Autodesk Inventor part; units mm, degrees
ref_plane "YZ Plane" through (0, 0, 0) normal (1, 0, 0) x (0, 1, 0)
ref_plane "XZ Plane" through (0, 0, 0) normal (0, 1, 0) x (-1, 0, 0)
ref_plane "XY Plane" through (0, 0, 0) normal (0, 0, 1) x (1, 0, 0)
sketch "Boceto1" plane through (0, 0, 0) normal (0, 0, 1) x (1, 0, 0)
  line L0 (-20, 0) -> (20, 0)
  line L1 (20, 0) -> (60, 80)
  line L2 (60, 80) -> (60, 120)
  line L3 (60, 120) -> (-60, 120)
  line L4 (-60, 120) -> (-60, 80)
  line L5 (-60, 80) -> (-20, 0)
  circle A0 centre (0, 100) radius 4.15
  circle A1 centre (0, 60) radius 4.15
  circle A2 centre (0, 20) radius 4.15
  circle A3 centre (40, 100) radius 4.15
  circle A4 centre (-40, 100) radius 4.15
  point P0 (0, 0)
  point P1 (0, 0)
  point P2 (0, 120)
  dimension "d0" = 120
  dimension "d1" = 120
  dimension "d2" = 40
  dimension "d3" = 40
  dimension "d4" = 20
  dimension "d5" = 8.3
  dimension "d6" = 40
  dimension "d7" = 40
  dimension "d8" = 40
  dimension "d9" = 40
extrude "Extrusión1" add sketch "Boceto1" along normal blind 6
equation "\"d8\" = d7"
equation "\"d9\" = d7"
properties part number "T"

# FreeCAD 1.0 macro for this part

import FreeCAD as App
import Part
import Sketcher


def add_polygon(sketch, points):
    """Adds a closed chain of lines whose ends are joined by coincident constraints."""
    first, n = sketch.GeometryCount, len(points)
    for a, b in zip(points, points[1:] + points[:1]):
        sketch.addGeometry(Part.LineSegment(App.Vector(*a, 0), App.Vector(*b, 0)), False)
    for i in range(n):
        sketch.addConstraint(Sketcher.Constraint("Coincident", first + i, 2, first + (i + 1) % n, 1))

doc = App.newDocument("Part")
body = doc.addObject("PartDesign::Body", "Body")

# Sketch on XY plane
sketch1 = body.newObject("Sketcher::SketchObject", "Sketch")
sketch1.AttachmentSupport = (doc.getObject("XY_Plane"), [""])
sketch1.MapMode = "FlatFace"
add_polygon(sketch1, [(-60, 80), (-20, 0), (20, 0), (60, 80), (60, 120), (-60, 120)])  # lines 0-5
sketch1.addGeometry(Part.Circle(App.Vector(0, 20, 0), App.Vector(0, 0, 1), 4.2), False)  # 6
sketch1.addGeometry(Part.Circle(App.Vector(-40, 100, 0), App.Vector(0, 0, 1), 4.2), False)  # 7
sketch1.addGeometry(Part.Circle(App.Vector(0, 60, 0), App.Vector(0, 0, 1), 4.2), False)  # 8
sketch1.addGeometry(Part.Circle(App.Vector(0, 100, 0), App.Vector(0, 0, 1), 4.2), False)  # 9
sketch1.addGeometry(Part.Circle(App.Vector(40, 100, 0), App.Vector(0, 0, 1), 4.2), False)  # 10
sketch1.addConstraint([
    Sketcher.Constraint("Horizontal", 1),
    Sketcher.Constraint("Vertical", 3),
    Sketcher.Constraint("Horizontal", 4),
    Sketcher.Constraint("Vertical", 5),
    Sketcher.Constraint("Equal", 6, 7),
    Sketcher.Constraint("Equal", 7, 8),
    Sketcher.Constraint("Equal", 8, 9),
    Sketcher.Constraint("Equal", 9, 10),
    Sketcher.Constraint("Symmetric", 0, 2, 1, 2, -1, 1),
    Sketcher.Constraint("Symmetric", 7, 3, 10, 3, -2),
    Sketcher.Constraint("Symmetric", 2, 2, 5, 2, -2),
    Sketcher.Constraint("PointOnObject", 6, 3, -2),
    Sketcher.Constraint("PointOnObject", 8, 3, -2),
    Sketcher.Constraint("PointOnObject", 9, 3, -2),
    Sketcher.Constraint("Horizontal", 7, 3, 9, 3),
    Sketcher.Constraint("Equal", 1, 3),
    Sketcher.Constraint("Diameter", 6, 8.3),
    Sketcher.Constraint("DistanceX", 1, 1, 1, 2, 40.0),
    Sketcher.Constraint("DistanceX", 4, 2, 4, 1, 120.0),
    Sketcher.Constraint("DistanceY", -1, 1, 6, 3, 20.0),
    Sketcher.Constraint("DistanceX", 7, 3, -1, 1, 40.0),
    Sketcher.Constraint("DistanceY", -1, 1, 3, 2, 120.0),
    Sketcher.Constraint("DistanceY", 6, 3, 8, 3, 40.0),
    Sketcher.Constraint("DistanceY", 8, 3, 7, 3, 40.0),
])
pad1 = body.newObject("PartDesign::Pad", "Pad")
pad1.Profile = sketch1
pad1.Length = 6

doc.recompute()
